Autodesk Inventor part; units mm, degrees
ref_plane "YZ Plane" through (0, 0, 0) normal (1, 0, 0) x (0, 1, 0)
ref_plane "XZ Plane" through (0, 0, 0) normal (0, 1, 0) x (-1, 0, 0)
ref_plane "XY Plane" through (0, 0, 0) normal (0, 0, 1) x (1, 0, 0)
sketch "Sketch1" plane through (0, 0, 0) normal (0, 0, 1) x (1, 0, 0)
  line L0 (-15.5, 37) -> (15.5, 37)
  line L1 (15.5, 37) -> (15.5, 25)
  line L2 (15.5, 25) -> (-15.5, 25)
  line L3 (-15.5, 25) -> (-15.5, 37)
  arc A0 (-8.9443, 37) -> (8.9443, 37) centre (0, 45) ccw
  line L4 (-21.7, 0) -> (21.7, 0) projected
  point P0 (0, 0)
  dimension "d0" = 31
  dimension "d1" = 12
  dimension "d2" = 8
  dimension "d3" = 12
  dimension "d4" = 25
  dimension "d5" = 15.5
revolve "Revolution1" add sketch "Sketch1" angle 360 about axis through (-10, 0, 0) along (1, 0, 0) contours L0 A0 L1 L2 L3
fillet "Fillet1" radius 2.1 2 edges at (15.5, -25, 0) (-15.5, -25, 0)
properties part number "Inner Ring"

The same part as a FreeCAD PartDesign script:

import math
import FreeCAD as App
import Part
import Sketcher

V = App.Vector
Q = App.Units.Quantity


def edges_at(feature, points):
    """Names of the edges that pass closest to the given points."""
    edges = feature.Shape.Edges
    near = lambda p: min(range(len(edges)), key=lambda i: edges[i].distToShape(Part.Vertex(*p))[0])
    return sorted({f"Edge{near(p) + 1}" for p in points})

doc = App.newDocument("Part")
body = doc.addObject("PartDesign::Body", "Body")

# Sketch on XY plane
sketch1 = body.newObject("Sketcher::SketchObject", "Sketch")
sketch1.AttachmentSupport = (doc.getObject("XY_Plane"), [""])
sketch1.MapMode = "FlatFace"
sketch1.addGeometry(Part.LineSegment(V(-9, 37, 0), V(-16, 37, 0)), False)
sketch1.addGeometry(Part.LineSegment(V(-16, 37, 0), V(-16, 25, 0)), False)
sketch1.addGeometry(Part.LineSegment(V(-16, 25, 0), V(16, 25, 0)), False)
sketch1.addGeometry(Part.LineSegment(V(16, 25, 0), V(16, 37, 0)), False)
sketch1.addGeometry(Part.LineSegment(V(16, 37, 0), V(9, 37, 0)), False)
sketch1.addGeometry(Part.ArcOfCircle(Part.Circle(V(0, 45, 0), V(0, 0, 1), 12), math.radians(-138), math.radians(-42)), False)
sketch1.addConstraint(Sketcher.Constraint("Coincident", 0, 2, 1, 1))
sketch1.addConstraint(Sketcher.Constraint("Coincident", 1, 2, 2, 1))
sketch1.addConstraint(Sketcher.Constraint("Coincident", 2, 2, 3, 1))
sketch1.addConstraint(Sketcher.Constraint("Coincident", 3, 2, 4, 1))
sketch1.addConstraint(Sketcher.Constraint("Coincident", 4, 2, 5, 2))
sketch1.addConstraint(Sketcher.Constraint("Coincident", 5, 1, 0, 1))
sketch1.addConstraint(Sketcher.Constraint("Horizontal", 0))
sketch1.addConstraint(Sketcher.Constraint("Vertical", 1))
sketch1.addConstraint(Sketcher.Constraint("Horizontal", 2))
sketch1.addConstraint(Sketcher.Constraint("Vertical", 3))
sketch1.addConstraint(Sketcher.Constraint("Horizontal", 4))
sketch1.addConstraint(Sketcher.Constraint("Symmetric", 0, 2, 3, 2, -2))
sketch1.addConstraint(Sketcher.Constraint("PointOnObject", 5, 3, -2))
sketch1.addConstraint(Sketcher.Constraint("Radius", 5, Q("12 mm")))
sketch1.addConstraint(Sketcher.Constraint("DistanceX", 2, 1, 2, 2, Q("31 mm")))
sketch1.addConstraint(Sketcher.Constraint("DistanceY", 1, 2, 1, 1, Q("12 mm")))
sketch1.addConstraint(Sketcher.Constraint("DistanceY", -1, 1, 1, 2, Q("25 mm")))
sketch1.addConstraint(Sketcher.Constraint("DistanceY", 0, 2, 5, 3, Q("8 mm")))
revolution = body.newObject("PartDesign::Revolution", "Revolution")
revolution.Profile = sketch1
revolution.ReferenceAxis = (sketch1, ["H_Axis"])
revolution.Angle = 360
doc.recompute()

fillet = body.newObject("PartDesign::Fillet", "Fillet")
fillet.Base = (revolution, edges_at(revolution, [(15.5, -25, 0), (-15.5, -25, 0)]))
fillet.Radius = 2.1

doc.recompute()
